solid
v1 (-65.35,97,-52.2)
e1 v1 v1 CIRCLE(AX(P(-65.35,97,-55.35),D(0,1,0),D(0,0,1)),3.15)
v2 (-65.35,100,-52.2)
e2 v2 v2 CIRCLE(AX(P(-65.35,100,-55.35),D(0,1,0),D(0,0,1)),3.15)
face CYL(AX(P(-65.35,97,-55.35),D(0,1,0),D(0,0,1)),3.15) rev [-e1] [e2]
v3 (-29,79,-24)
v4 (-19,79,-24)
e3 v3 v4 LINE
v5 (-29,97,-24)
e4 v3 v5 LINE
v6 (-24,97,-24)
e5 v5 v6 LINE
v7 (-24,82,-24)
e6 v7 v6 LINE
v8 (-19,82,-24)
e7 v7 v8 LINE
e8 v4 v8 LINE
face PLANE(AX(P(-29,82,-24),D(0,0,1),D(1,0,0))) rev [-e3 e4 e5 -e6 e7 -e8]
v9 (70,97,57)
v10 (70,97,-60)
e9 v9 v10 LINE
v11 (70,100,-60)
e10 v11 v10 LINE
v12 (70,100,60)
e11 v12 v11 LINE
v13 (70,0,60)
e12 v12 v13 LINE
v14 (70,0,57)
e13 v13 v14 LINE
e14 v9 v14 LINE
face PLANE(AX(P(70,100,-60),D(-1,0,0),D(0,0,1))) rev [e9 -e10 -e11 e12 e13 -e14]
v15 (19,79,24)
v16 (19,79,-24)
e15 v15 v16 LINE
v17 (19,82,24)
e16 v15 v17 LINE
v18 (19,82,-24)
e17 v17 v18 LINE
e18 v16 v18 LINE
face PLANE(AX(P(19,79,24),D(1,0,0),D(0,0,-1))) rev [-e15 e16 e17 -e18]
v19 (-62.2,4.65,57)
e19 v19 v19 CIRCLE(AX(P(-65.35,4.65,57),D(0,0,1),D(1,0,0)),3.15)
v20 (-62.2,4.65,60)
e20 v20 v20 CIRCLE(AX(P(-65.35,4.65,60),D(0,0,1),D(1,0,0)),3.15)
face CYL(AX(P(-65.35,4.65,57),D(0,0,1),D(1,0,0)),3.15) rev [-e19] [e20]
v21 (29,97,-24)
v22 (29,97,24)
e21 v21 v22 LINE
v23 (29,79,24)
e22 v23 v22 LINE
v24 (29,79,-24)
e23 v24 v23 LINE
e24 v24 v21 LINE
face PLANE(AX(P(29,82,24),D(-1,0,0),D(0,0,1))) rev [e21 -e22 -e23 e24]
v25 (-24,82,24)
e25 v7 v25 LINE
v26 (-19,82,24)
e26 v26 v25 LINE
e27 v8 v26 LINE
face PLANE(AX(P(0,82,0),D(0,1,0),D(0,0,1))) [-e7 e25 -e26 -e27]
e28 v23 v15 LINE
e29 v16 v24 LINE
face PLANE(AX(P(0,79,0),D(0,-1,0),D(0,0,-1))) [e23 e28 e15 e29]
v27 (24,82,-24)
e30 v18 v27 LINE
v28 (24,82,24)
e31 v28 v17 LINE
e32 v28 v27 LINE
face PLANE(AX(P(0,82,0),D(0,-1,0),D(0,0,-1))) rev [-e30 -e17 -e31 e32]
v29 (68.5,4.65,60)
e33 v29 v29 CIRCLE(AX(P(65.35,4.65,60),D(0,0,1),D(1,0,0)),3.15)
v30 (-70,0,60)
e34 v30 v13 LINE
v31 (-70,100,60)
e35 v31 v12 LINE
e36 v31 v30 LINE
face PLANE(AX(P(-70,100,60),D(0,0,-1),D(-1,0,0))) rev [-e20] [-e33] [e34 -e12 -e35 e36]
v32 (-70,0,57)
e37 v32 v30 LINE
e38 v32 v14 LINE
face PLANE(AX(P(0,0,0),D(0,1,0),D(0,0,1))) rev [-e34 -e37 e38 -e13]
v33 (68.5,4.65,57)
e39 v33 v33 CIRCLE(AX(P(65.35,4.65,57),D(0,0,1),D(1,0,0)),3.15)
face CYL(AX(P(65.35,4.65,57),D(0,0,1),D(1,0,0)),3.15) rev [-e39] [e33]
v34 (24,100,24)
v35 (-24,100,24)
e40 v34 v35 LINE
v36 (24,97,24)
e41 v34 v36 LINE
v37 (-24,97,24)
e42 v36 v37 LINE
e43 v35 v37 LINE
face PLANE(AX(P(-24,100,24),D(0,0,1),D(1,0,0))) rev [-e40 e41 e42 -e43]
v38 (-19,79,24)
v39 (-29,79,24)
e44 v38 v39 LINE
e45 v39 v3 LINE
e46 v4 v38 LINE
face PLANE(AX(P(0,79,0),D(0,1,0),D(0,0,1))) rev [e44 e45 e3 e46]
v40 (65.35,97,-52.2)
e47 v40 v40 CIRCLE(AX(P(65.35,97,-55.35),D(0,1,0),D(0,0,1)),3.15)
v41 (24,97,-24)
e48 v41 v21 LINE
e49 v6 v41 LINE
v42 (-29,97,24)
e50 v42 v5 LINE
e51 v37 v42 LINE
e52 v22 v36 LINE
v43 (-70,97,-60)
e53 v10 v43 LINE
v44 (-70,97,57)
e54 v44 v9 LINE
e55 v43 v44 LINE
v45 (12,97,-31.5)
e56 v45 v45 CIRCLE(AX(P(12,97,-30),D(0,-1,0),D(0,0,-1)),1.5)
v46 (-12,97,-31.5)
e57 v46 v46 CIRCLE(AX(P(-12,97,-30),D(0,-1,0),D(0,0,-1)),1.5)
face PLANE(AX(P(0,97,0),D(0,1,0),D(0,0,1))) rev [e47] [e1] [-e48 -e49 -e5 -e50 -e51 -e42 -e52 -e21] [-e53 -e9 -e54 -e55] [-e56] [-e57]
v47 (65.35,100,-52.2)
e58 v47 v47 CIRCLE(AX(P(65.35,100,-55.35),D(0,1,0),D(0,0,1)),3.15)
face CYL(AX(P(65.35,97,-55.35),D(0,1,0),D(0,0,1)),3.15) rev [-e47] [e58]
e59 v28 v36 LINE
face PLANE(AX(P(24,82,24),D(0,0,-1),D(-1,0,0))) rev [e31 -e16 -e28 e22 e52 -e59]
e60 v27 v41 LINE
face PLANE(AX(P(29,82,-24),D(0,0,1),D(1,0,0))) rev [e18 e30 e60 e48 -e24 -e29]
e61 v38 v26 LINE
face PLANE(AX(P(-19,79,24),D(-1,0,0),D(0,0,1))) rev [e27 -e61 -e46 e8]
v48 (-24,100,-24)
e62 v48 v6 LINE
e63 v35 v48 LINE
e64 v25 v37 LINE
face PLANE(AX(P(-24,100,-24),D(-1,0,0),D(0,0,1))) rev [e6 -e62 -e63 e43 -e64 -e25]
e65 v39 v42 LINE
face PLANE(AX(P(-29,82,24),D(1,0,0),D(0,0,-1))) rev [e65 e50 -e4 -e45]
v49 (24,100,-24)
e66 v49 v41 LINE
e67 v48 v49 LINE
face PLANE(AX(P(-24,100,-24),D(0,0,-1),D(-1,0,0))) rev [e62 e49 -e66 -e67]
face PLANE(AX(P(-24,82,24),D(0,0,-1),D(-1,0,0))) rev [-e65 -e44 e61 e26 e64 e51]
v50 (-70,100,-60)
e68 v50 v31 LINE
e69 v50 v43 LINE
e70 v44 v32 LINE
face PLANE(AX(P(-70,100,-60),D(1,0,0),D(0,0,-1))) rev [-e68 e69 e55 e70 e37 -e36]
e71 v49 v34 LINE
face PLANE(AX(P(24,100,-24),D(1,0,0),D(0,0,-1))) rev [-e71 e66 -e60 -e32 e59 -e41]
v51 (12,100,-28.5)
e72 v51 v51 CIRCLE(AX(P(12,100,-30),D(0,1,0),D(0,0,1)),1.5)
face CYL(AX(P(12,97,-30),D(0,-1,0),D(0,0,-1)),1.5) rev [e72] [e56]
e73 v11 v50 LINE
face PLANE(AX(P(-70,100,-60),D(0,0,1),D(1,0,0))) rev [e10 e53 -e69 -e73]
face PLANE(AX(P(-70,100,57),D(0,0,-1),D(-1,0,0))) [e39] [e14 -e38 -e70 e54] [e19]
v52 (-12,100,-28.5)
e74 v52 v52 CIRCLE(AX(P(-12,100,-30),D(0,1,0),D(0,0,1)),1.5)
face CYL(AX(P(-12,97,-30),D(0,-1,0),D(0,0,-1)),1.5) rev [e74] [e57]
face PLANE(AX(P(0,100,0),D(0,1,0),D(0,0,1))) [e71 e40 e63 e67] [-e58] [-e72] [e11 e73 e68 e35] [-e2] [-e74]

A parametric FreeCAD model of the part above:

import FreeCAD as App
import Part
import Sketcher
Q = App.Units.Quantity


def faces_at(feature, points):
    """Names of the faces that lie closest to the given points."""
    faces = feature.Shape.Faces
    near = lambda p: min(range(len(faces)), key=lambda i: faces[i].distToShape(Part.Vertex(*p))[0])
    return sorted({f"Face{near(p) + 1}" for p in points})

doc = App.newDocument("Part")
body = doc.addObject("PartDesign::Body", "Body")

sketch1 = body.newObject("Sketcher::SketchObject", "Sketch")
sketch1.AttachmentSupport = (doc.getObject("XZ_Plane"), [""])
sketch1.MapMode = "FlatFace"
sketch1.addGeometry([
    Part.LineSegment(App.Vector(-70, -60, 0), App.Vector(-70, 60, 0)),
    Part.LineSegment(App.Vector(-70, 60, 0), App.Vector(70, 60, 0)),
    Part.LineSegment(App.Vector(70, 60, 0), App.Vector(70, -60, 0)),
    Part.LineSegment(App.Vector(70, -60, 0), App.Vector(-70, -60, 0)),
], False)
sketch1.addConstraint([
    Sketcher.Constraint("Coincident", 0, 2, 1, 1),
    Sketcher.Constraint("Coincident", 1, 2, 2, 1),
    Sketcher.Constraint("Coincident", 2, 2, 3, 1),
    Sketcher.Constraint("Coincident", 3, 2, 0, 1),
    Sketcher.Constraint("Vertical", 0),
    Sketcher.Constraint("Horizontal", 1),
    Sketcher.Constraint("Vertical", 2),
    Sketcher.Constraint("Horizontal", 3),
    Sketcher.Constraint("Symmetric", 0, 2, 2, 2, -1, 1),
    Sketcher.Constraint("DistanceX", 1, 1, 1, 2, Q("140 mm")),
    Sketcher.Constraint("DistanceY", 0, 1, 0, 2, Q("120 mm")),
])
pad1 = body.newObject("PartDesign::Pad", "Pad")
pad1.Profile = sketch1
pad1.Length = 100
pad1.Reversed = True
doc.recompute()

thickness = body.newObject("PartDesign::Thickness", "Thickness")
thickness.Base = (pad1, faces_at(pad1, [
    (0, 0, 0),
    (-70, 50, 0),
    (0, 50, -60),
    (70, 50, 0),
]))
thickness.Value = 3
thickness.Reversed = True
thickness.Join = "Intersection"

sketch2 = body.newObject("Sketcher::SketchObject", "Sketch001")
sketch2.AttachmentSupport = (doc.getObject("XY_Plane"), [""])
sketch2.MapMode = "FlatFace"
sketch2.AttachmentOffset = App.Placement(App.Vector(0, 0, 60), App.Rotation())
sketch2.addGeometry([
    Part.Circle(App.Vector(-65.35, 4.65, 0), App.Vector(0, 0, 1), 3.15),
    Part.Circle(App.Vector(65.35, 4.65, 0), App.Vector(0, 0, 1), 3.15),
], False)
sketch2.addConstraint([
    Sketcher.Constraint("Equal", 0, 1),
    Sketcher.Constraint("Symmetric", 0, 3, 1, 3, -2),
    Sketcher.Constraint("Diameter", 0, Q("6.3 mm")),
    Sketcher.Constraint("DistanceX", 0, 3, 1, 3, Q("130.7 mm")),
    Sketcher.Constraint("DistanceY", -1, 1, 0, 3, Q("4.65 mm")),
])
pocket1 = body.newObject("PartDesign::Pocket", "Pocket")
pocket1.Profile = sketch2
pocket1.Length = 3

sketch3 = body.newObject("Sketcher::SketchObject", "Sketch002")
sketch3.AttachmentSupport = (doc.getObject("XZ_Plane"), [""])
sketch3.MapMode = "FlatFace"
sketch3.AttachmentOffset = App.Placement(App.Vector(0, 0, -100), App.Rotation())
sketch3.addGeometry([
    Part.Circle(App.Vector(-65.35, -55.35, 0), App.Vector(0, 0, 1), 3.15),
    Part.Circle(App.Vector(65.35, -55.35, 0), App.Vector(0, 0, 1), 3.15),
], False)
sketch3.addConstraint([
    Sketcher.Constraint("Equal", 0, 1),
    Sketcher.Constraint("Symmetric", 0, 3, 1, 3, -2),
    Sketcher.Constraint("Diameter", 0, Q("6.3 mm")),
    Sketcher.Constraint("DistanceX", 0, 3, 1, 3, Q("130.7 mm")),
    Sketcher.Constraint("DistanceY", 0, 3, -1, 1, Q("55.35 mm")),
])
pocket2 = body.newObject("PartDesign::Pocket", "Pocket001")
pocket2.Profile = sketch3
pocket2.Length = 3
pocket2.Reversed = True

sketch4 = body.newObject("Sketcher::SketchObject", "Sketch003")
sketch4.AttachmentSupport = (doc.getObject("XZ_Plane"), [""])
sketch4.MapMode = "FlatFace"
sketch4.AttachmentOffset = App.Placement(App.Vector(0, 0, -97), App.Rotation())
sketch4.addGeometry([
    Part.LineSegment(App.Vector(-24, 24, 0), App.Vector(-24, -24, 0)),
    Part.LineSegment(App.Vector(-24, -24, 0), App.Vector(24, -24, 0)),
    Part.LineSegment(App.Vector(24, -24, 0), App.Vector(24, 24, 0)),
    Part.LineSegment(App.Vector(24, 24, 0), App.Vector(-24, 24, 0)),
], False)
sketch4.addConstraint([
    Sketcher.Constraint("Coincident", 0, 2, 1, 1),
    Sketcher.Constraint("Coincident", 1, 2, 2, 1),
    Sketcher.Constraint("Coincident", 2, 2, 3, 1),
    Sketcher.Constraint("Coincident", 3, 2, 0, 1),
    Sketcher.Constraint("Vertical", 0),
    Sketcher.Constraint("Horizontal", 1),
    Sketcher.Constraint("Vertical", 2),
    Sketcher.Constraint("Horizontal", 3),
    Sketcher.Constraint("Symmetric", 0, 2, 2, 2, -1, 1),
    Sketcher.Constraint("Equal", 3, 0),
    Sketcher.Constraint("DistanceX", 1, 1, 1, 2, Q("48 mm")),
])
pocket3 = body.newObject("PartDesign::Pocket", "Pocket002")
pocket3.Profile = sketch4
pocket3.Length = 3

sketch5 = body.newObject("Sketcher::SketchObject", "Sketch004")
sketch5.AttachmentSupport = (doc.getObject("XZ_Plane"), [""])
sketch5.MapMode = "FlatFace"
sketch5.AttachmentOffset = App.Placement(App.Vector(0, 0, -97), App.Rotation())
sketch5.addGeometry([
    Part.LineSegment(App.Vector(24, 24, 0), App.Vector(24, -24, 0)),
    Part.LineSegment(App.Vector(24, -24, 0), App.Vector(29, -24, 0)),
    Part.LineSegment(App.Vector(29, -24, 0), App.Vector(29, 24, 0)),
    Part.LineSegment(App.Vector(29, 24, 0), App.Vector(24, 24, 0)),
    Part.LineSegment(App.Vector(-29, 24, 0), App.Vector(-29, -24, 0)),
    Part.LineSegment(App.Vector(-29, -24, 0), App.Vector(-24, -24, 0)),
    Part.LineSegment(App.Vector(-24, -24, 0), App.Vector(-24, 24, 0)),
    Part.LineSegment(App.Vector(-24, 24, 0), App.Vector(-29, 24, 0)),
], False)
sketch5.addConstraint([
    Sketcher.Constraint("Coincident", 0, 2, 1, 1),
    Sketcher.Constraint("Coincident", 1, 2, 2, 1),
    Sketcher.Constraint("Coincident", 2, 2, 3, 1),
    Sketcher.Constraint("Coincident", 3, 2, 0, 1),
    Sketcher.Constraint("Coincident", 4, 2, 5, 1),
    Sketcher.Constraint("Coincident", 5, 2, 6, 1),
    Sketcher.Constraint("Coincident", 6, 2, 7, 1),
    Sketcher.Constraint("Coincident", 7, 2, 4, 1),
    Sketcher.Constraint("Vertical", 0),
    Sketcher.Constraint("Horizontal", 1),
    Sketcher.Constraint("Vertical", 2),
    Sketcher.Constraint("Horizontal", 3),
    Sketcher.Constraint("Vertical", 4),
    Sketcher.Constraint("Horizontal", 5),
    Sketcher.Constraint("Vertical", 6),
    Sketcher.Constraint("Horizontal", 7),
    Sketcher.Constraint("Symmetric", 2, 2, 4, 2, -1, 1),
    Sketcher.Constraint("Symmetric", 0, 2, 6, 2, -1, 1),
    Sketcher.Constraint("Horizontal", 1, 2, 4, 2),
    Sketcher.Constraint("DistanceX", 1, 1, 1, 2, Q("5 mm")),
    Sketcher.Constraint("DistanceY", 0, 2, 0, 1, Q("48 mm")),
    Sketcher.Constraint("DistanceX", -1, 1, 0, 2, Q("24 mm")),
])
pad2 = body.newObject("PartDesign::Pad", "Pad001")
pad2.Profile = sketch5
pad2.Length = 15

sketch6 = body.newObject("Sketcher::SketchObject", "Sketch005")
sketch6.AttachmentSupport = (doc.getObject("XZ_Plane"), [""])
sketch6.MapMode = "FlatFace"
sketch6.AttachmentOffset = App.Placement(App.Vector(0, 0, -82), App.Rotation())
sketch6.addGeometry([
    Part.LineSegment(App.Vector(19, 24, 0), App.Vector(19, -24, 0)),
    Part.LineSegment(App.Vector(19, -24, 0), App.Vector(29, -24, 0)),
    Part.LineSegment(App.Vector(29, -24, 0), App.Vector(29, 24, 0)),
    Part.LineSegment(App.Vector(29, 24, 0), App.Vector(19, 24, 0)),
    Part.LineSegment(App.Vector(-29, 24, 0), App.Vector(-29, -24, 0)),
    Part.LineSegment(App.Vector(-29, -24, 0), App.Vector(-19, -24, 0)),
    Part.LineSegment(App.Vector(-19, -24, 0), App.Vector(-19, 24, 0)),
    Part.LineSegment(App.Vector(-19, 24, 0), App.Vector(-29, 24, 0)),
], False)
sketch6.addConstraint([
    Sketcher.Constraint("Coincident", 0, 2, 1, 1),
    Sketcher.Constraint("Coincident", 1, 2, 2, 1),
    Sketcher.Constraint("Coincident", 2, 2, 3, 1),
    Sketcher.Constraint("Coincident", 3, 2, 0, 1),
    Sketcher.Constraint("Coincident", 4, 2, 5, 1),
    Sketcher.Constraint("Coincident", 5, 2, 6, 1),
    Sketcher.Constraint("Coincident", 6, 2, 7, 1),
    Sketcher.Constraint("Coincident", 7, 2, 4, 1),
    Sketcher.Constraint("Vertical", 0),
    Sketcher.Constraint("Horizontal", 1),
    Sketcher.Constraint("Vertical", 2),
    Sketcher.Constraint("Horizontal", 3),
    Sketcher.Constraint("Vertical", 4),
    Sketcher.Constraint("Horizontal", 5),
    Sketcher.Constraint("Vertical", 6),
    Sketcher.Constraint("Horizontal", 7),
    Sketcher.Constraint("Symmetric", 2, 2, 4, 2, -1, 1),
    Sketcher.Constraint("Symmetric", 0, 2, 6, 2, -1, 1),
    Sketcher.Constraint("Horizontal", 1, 2, 4, 2),
    Sketcher.Constraint("DistanceX", 1, 1, 1, 2, Q("10 mm")),
    Sketcher.Constraint("DistanceY", 0, 2, 0, 1, Q("48 mm")),
    Sketcher.Constraint("DistanceX", -1, 1, 0, 2, Q("19 mm")),
])
pad3 = body.newObject("PartDesign::Pad", "Pad002")
pad3.Profile = sketch6
pad3.Length = 3

sketch7 = body.newObject("Sketcher::SketchObject", "Sketch006")
sketch7.AttachmentSupport = (doc.getObject("XZ_Plane"), [""])
sketch7.MapMode = "FlatFace"
sketch7.AttachmentOffset = App.Placement(App.Vector(0, 0, -97), App.Rotation())
sketch7.addGeometry([
    Part.Circle(App.Vector(-12, -30, 0), App.Vector(0, 0, 1), 1.5),
    Part.Circle(App.Vector(12, -30, 0), App.Vector(0, 0, 1), 1.5),
], False)
sketch7.addConstraint([
    Sketcher.Constraint("Equal", 0, 1),
    Sketcher.Constraint("Symmetric", 0, 3, 1, 3, -2),
    Sketcher.Constraint("Diameter", 0, Q("3 mm")),
    Sketcher.Constraint("DistanceX", 0, 3, -1, 1, Q("12 mm")),
    Sketcher.Constraint("DistanceY", 0, 3, -1, 1, Q("30 mm")),
])
doc.recompute()
hole = body.newObject("PartDesign::Hole", "Hole")
hole.Profile = sketch7
hole.ThreadType = "None"
hole.Diameter = 3
hole.DepthType = "Dimension"
hole.Depth = 5
hole.DrillPoint = "Angled"
hole.DrillPointAngle = 118

doc.recompute()
